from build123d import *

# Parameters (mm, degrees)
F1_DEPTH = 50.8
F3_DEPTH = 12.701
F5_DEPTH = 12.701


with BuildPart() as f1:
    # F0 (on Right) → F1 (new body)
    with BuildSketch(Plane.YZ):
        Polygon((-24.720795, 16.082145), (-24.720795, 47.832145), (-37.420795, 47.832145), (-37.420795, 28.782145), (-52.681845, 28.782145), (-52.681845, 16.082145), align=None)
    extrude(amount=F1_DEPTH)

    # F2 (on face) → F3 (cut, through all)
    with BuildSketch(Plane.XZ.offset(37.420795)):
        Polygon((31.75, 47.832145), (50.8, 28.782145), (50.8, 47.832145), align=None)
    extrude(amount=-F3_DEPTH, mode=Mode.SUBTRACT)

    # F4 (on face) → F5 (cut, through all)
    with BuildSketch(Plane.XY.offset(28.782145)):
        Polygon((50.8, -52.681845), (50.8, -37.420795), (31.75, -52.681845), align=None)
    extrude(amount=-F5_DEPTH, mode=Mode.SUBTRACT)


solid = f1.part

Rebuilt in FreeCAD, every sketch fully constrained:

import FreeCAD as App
import Part
import Sketcher

V = App.Vector
Q = App.Units.Quantity


def add_polygon(sketch, points):
    """Adds a closed chain of lines whose ends are joined by coincident constraints."""
    first, n = sketch.GeometryCount, len(points)
    for a, b in zip(points, points[1:] + points[:1]):
        sketch.addGeometry(Part.LineSegment(App.Vector(*a, 0), App.Vector(*b, 0)), False)
    for i in range(n):
        sketch.addConstraint(Sketcher.Constraint("Coincident", first + i, 2, first + (i + 1) % n, 1))

doc = App.newDocument("Part")
params = doc.addObject("Spreadsheet::Sheet", "Params")
for row, (alias, value) in enumerate([
    ("sketch1_width", "0.5 in"),
    ("sketch1_height", "1.25 in"),
    ("pad1_length", "2 in"),
    ("sketch2_width", "0.75 in"),
    ("sketch3_width", "0.75 in"),
], start=1):
    params.set(f"A{row}", alias)
    params.set(f"B{row}", "=" + value)
    params.setAlias(f"B{row}", alias)

body = doc.addObject("PartDesign::Body", "Body")

sketch1 = body.newObject("Sketcher::SketchObject", "Sketch")
sketch1.AttachmentSupport = (doc.getObject("YZ_Plane"), [""])
sketch1.MapMode = "FlatFace"
add_polygon(sketch1, [(-24.720795, 16.082145), (-24.720795, 47.832145), (-37.420795, 47.832145), (-37.420795, 28.782145), (-52.681845, 28.782145), (-52.681845, 16.082145)])
sketch1.addConstraint([
    Sketcher.Constraint("Vertical", 0),
    Sketcher.Constraint("Horizontal", 1),
    Sketcher.Constraint("Vertical", 2),
    Sketcher.Constraint("Horizontal", 3),
    Sketcher.Constraint("Vertical", 4),
    Sketcher.Constraint("Horizontal", 5),
    Sketcher.Constraint("Equal", 1, 4),
    Sketcher.Constraint("DistanceX", 1, 2, 1, 1, Q("0.5 in")),
    Sketcher.Constraint("DistanceY", 0, 1, 0, 2, Q("1.25 in")),
    Sketcher.Constraint("DistanceX", 3, 2, 3, 1, 15.26105),
    Sketcher.Constraint("DistanceX", 0, 2, -1, 1, 24.720795),
    Sketcher.Constraint("DistanceY", -1, 1, 0, 2, 47.832145),
])
sketch1.setExpression("Constraints[13]", "Params.sketch1_width")
sketch1.setExpression("Constraints[14]", "Params.sketch1_height")
pad1 = body.newObject("PartDesign::Pad", "Pad")
pad1.Profile = sketch1
pad1.setExpression("Length", "Params.pad1_length")

sketch2 = body.newObject("Sketcher::SketchObject", "Sketch001")
sketch2.AttachmentSupport = (doc.getObject("XZ_Plane"), [""])
sketch2.MapMode = "FlatFace"
sketch2.AttachmentOffset = App.Placement(V(0, 0, 37.420795), App.Rotation())
add_polygon(sketch2, [(31.75, 47.832145), (50.8, 28.782145), (50.8, 47.832145)])
sketch2.addConstraint([
    Sketcher.Constraint("Vertical", 1),
    Sketcher.Constraint("Horizontal", 2),
    Sketcher.Constraint("Equal", 2, 1),
    Sketcher.Constraint("DistanceX", -1, 1, 0, 2, Q("2 in")),
    Sketcher.Constraint("DistanceX", 2, 2, 2, 1, Q("0.75 in")),
    Sketcher.Constraint("DistanceY", -1, 1, 0, 2, 28.782145),
])
sketch2.setExpression("Constraints[7]", "Params.sketch2_width")
pocket1 = body.newObject("PartDesign::Pocket", "Pocket")
pocket1.Profile = sketch2
pocket1.Type = "ThroughAll"

sketch3 = body.newObject("Sketcher::SketchObject", "Sketch002")
sketch3.AttachmentSupport = (doc.getObject("XY_Plane"), [""])
sketch3.MapMode = "FlatFace"
sketch3.AttachmentOffset = App.Placement(V(0, 0, 28.782145), App.Rotation())
add_polygon(sketch3, [(50.8, -52.681845), (50.8, -37.420795), (31.75, -52.681845)])
sketch3.addConstraint([
    Sketcher.Constraint("Vertical", 0),
    Sketcher.Constraint("Horizontal", 2),
    Sketcher.Constraint("DistanceX", -1, 1, 0, 2, Q("2 in")),
    Sketcher.Constraint("DistanceX", 2, 1, 2, 2, Q("0.75 in")),
    Sketcher.Constraint("DistanceY", 0, 1, 0, 2, 15.26105),
    Sketcher.Constraint("DistanceY", 0, 2, -1, 1, 37.420795),
])
sketch3.setExpression("Constraints[6]", "Params.sketch3_width")
pocket2 = body.newObject("PartDesign::Pocket", "Pocket001")
pocket2.Profile = sketch3
pocket2.Type = "ThroughAll"

doc.recompute()
